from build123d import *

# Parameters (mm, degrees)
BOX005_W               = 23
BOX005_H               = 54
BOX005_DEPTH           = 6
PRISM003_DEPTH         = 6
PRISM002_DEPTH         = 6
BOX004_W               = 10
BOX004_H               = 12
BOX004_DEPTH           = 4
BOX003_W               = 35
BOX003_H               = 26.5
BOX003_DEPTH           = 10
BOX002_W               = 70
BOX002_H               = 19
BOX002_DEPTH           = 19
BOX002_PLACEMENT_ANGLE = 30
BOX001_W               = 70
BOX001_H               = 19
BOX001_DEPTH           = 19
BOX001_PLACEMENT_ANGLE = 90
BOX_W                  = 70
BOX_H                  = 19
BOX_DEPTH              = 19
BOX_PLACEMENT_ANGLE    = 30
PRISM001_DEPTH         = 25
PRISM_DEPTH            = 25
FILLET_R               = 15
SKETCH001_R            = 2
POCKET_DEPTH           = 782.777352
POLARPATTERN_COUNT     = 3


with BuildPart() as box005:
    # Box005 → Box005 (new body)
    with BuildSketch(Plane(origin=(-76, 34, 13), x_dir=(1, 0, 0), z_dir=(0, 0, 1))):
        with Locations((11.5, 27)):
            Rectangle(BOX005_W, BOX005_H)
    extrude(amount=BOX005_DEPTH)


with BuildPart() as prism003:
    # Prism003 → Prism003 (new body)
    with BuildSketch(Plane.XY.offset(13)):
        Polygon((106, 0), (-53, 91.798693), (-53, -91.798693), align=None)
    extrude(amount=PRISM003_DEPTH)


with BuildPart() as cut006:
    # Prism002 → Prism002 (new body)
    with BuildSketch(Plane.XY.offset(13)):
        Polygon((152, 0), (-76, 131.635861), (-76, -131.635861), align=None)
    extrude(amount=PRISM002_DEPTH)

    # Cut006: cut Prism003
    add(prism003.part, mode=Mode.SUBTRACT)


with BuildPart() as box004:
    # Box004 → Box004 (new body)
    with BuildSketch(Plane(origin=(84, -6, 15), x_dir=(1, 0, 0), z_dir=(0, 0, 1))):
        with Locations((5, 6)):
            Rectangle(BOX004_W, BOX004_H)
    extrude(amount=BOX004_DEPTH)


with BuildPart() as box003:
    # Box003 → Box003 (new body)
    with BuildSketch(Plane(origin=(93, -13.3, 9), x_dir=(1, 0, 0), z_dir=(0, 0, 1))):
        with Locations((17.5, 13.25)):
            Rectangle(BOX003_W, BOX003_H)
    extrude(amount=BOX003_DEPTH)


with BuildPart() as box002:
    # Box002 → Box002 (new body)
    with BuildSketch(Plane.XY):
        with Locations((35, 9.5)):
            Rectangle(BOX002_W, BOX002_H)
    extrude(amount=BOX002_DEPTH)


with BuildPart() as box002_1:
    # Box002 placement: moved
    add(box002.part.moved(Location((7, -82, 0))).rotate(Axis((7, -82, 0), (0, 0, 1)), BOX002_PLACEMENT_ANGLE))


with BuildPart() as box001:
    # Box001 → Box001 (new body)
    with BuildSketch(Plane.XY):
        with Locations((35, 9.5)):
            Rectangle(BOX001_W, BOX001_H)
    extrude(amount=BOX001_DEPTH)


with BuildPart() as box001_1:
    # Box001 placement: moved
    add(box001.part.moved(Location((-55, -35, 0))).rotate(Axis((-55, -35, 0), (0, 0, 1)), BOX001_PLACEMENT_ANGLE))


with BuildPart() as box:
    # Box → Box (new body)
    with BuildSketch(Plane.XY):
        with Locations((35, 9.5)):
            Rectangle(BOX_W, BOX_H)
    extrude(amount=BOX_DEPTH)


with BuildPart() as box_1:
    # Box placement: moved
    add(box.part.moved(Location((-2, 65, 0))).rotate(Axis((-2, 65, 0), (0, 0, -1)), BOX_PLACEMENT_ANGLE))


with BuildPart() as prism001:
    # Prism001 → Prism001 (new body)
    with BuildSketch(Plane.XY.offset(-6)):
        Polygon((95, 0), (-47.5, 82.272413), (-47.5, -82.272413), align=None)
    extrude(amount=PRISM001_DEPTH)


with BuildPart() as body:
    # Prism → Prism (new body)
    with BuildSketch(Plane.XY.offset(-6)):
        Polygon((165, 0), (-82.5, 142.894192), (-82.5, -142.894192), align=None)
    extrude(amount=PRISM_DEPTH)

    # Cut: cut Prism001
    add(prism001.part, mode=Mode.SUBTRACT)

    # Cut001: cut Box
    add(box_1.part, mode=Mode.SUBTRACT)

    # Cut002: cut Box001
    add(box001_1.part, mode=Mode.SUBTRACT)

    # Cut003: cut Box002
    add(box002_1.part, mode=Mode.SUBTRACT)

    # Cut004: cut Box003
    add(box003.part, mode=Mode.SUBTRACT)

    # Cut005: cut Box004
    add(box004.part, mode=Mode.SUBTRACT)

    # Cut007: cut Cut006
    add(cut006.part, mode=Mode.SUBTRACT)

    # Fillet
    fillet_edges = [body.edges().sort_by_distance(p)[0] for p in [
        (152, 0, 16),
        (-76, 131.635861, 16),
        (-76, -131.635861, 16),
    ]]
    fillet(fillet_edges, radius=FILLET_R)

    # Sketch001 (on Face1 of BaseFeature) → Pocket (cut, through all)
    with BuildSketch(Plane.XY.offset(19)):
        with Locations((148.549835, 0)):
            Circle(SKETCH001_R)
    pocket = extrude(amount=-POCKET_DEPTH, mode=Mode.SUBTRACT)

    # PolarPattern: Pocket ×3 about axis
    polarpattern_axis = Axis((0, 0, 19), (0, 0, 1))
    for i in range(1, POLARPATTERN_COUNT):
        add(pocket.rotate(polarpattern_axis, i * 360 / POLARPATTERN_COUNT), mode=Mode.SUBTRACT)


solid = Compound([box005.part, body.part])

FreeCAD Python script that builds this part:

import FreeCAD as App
import Part
import Sketcher

V = App.Vector
Q = App.Units.Quantity


def edges_at(feature, points):
    """Names of the edges that pass closest to the given points."""
    edges = feature.Shape.Edges
    near = lambda p: min(range(len(edges)), key=lambda i: edges[i].distToShape(Part.Vertex(*p))[0])
    return sorted({f"Edge{near(p) + 1}" for p in points})

doc = App.newDocument("Part")
params = doc.addObject("Spreadsheet::Sheet", "Params")
for row, (alias, value) in enumerate([
    ("sketch1_width", "23 mm"),
    ("sketch1_height", "54 mm"),
    ("pad1_length", "6 mm"),
    ("pad2_length", "6 mm"),
    ("pad3_length", "6 mm"),
    ("sketch4_width", "10 mm"),
    ("sketch4_height", "12 mm"),
    ("pad4_length", "4 mm"),
    ("sketch5_width", "35 mm"),
    ("sketch5_height", "26.5 mm"),
    ("pad5_length", "10 mm"),
    ("sketch6_width", "70 mm"),
    ("sketch6_height", "19 mm"),
    ("pad6_length", "19 mm"),
    ("sketch7_width", "70 mm"),
    ("sketch7_height", "19 mm"),
    ("pad7_length", "19 mm"),
    ("sketch8_width", "70 mm"),
    ("sketch8_height", "19 mm"),
    ("pad8_length", "19 mm"),
    ("pad9_length", "25 mm"),
    ("pad10_length", "25 mm"),
    ("fillet_radius", "15 mm"),
    ("sketch11_diameter", "4 mm"),
], start=1):
    params.set(f"A{row}", alias)
    params.set(f"B{row}", "=" + value)
    params.setAlias(f"B{row}", alias)

body = doc.addObject("PartDesign::Body", "Body")

sketch1 = body.newObject("Sketcher::SketchObject", "Sketch")
sketch1.AttachmentSupport = (doc.getObject("XY_Plane"), [""])
sketch1.MapMode = "FlatFace"
sketch1.AttachmentOffset = App.Placement(V(0, 0, 13), App.Rotation())
sketch1.addGeometry([
    Part.LineSegment(V(-76, 88, 0), V(-76, 34, 0)),
    Part.LineSegment(V(-76, 34, 0), V(-53, 34, 0)),
    Part.LineSegment(V(-53, 34, 0), V(-53, 88, 0)),
    Part.LineSegment(V(-53, 88, 0), V(-76, 88, 0)),
], False)
sketch1.addConstraint([
    Sketcher.Constraint("Coincident", 0, 2, 1, 1),
    Sketcher.Constraint("Coincident", 1, 2, 2, 1),
    Sketcher.Constraint("Coincident", 2, 2, 3, 1),
    Sketcher.Constraint("Coincident", 3, 2, 0, 1),
    Sketcher.Constraint("Vertical", 0),
    Sketcher.Constraint("Horizontal", 1),
    Sketcher.Constraint("Vertical", 2),
    Sketcher.Constraint("Horizontal", 3),
    Sketcher.Constraint("DistanceX", 1, 1, 1, 2, 23.0),
    Sketcher.Constraint("DistanceY", 0, 2, 0, 1, 54.0),
    Sketcher.Constraint("DistanceX", 0, 2, -1, 1, 76.0),
    Sketcher.Constraint("DistanceY", -1, 1, 0, 2, 34.0),
])
sketch1.setExpression("Constraints[8]", "Params.sketch1_width")
sketch1.setExpression("Constraints[9]", "Params.sketch1_height")
pad1 = body.newObject("PartDesign::Pad", "Pad")
pad1.Profile = sketch1
pad1.setExpression("Length", "Params.pad1_length")
body2 = doc.addObject("PartDesign::Body", "Body001")

sketch2 = body2.newObject("Sketcher::SketchObject", "Sketch001")
sketch2.AttachmentSupport = (doc.getObject("XY_Plane001"), [""])
sketch2.MapMode = "FlatFace"
sketch2.AttachmentOffset = App.Placement(V(0, 0, 13), App.Rotation())
sketch2.addGeometry([
    Part.LineSegment(V(106, 0, 0), V(-53, 92, 0)),
    Part.LineSegment(V(-53, 92, 0), V(-53, -92, 0)),
    Part.LineSegment(V(-53, -92, 0), V(106, 0, 0)),
], False)
sketch2.addConstraint([
    Sketcher.Constraint("Coincident", 0, 2, 1, 1),
    Sketcher.Constraint("Coincident", 1, 2, 2, 1),
    Sketcher.Constraint("Coincident", 2, 2, 0, 1),
    Sketcher.Constraint("Vertical", 1),
    Sketcher.Constraint("PointOnObject", 2, 2, -1),
    Sketcher.Constraint("Equal", 0, 2),
    Sketcher.Constraint("Angle", 0, Q("150 deg")),
    Sketcher.Constraint("DistanceX", 0, 2, -1, 1, 53.0),
    Sketcher.Constraint("DistanceX", -1, 1, 2, 2, 106.0),
])
pad2 = body2.newObject("PartDesign::Pad", "Pad001")
pad2.Profile = sketch2
pad2.setExpression("Length", "Params.pad2_length")
body3 = doc.addObject("PartDesign::Body", "Body002")

sketch3 = body3.newObject("Sketcher::SketchObject", "Sketch002")
sketch3.AttachmentSupport = (doc.getObject("XY_Plane002"), [""])
sketch3.MapMode = "FlatFace"
sketch3.AttachmentOffset = App.Placement(V(0, 0, 13), App.Rotation())
sketch3.addGeometry([
    Part.LineSegment(V(152, 0, 0), V(-76, 132, 0)),
    Part.LineSegment(V(-76, 132, 0), V(-76, -132, 0)),
    Part.LineSegment(V(-76, -132, 0), V(152, 0, 0)),
], False)
sketch3.addConstraint([
    Sketcher.Constraint("Coincident", 0, 2, 1, 1),
    Sketcher.Constraint("Coincident", 1, 2, 2, 1),
    Sketcher.Constraint("Coincident", 2, 2, 0, 1),
    Sketcher.Constraint("Vertical", 1),
    Sketcher.Constraint("PointOnObject", 2, 2, -1),
    Sketcher.Constraint("Equal", 0, 2),
    Sketcher.Constraint("Angle", 0, Q("150 deg")),
    Sketcher.Constraint("DistanceX", 0, 2, -1, 1, 76.0),
    Sketcher.Constraint("DistanceX", -1, 1, 2, 2, 152.0),
])
pad3 = body3.newObject("PartDesign::Pad", "Pad002")
pad3.Profile = sketch3
pad3.setExpression("Length", "Params.pad3_length")
doc.recompute()

boolean = body3.newObject("PartDesign::Boolean", "Boolean")
boolean.Type = "Cut"
boolean.addObjects([body2])
body4 = doc.addObject("PartDesign::Body", "Body003")

sketch4 = body4.newObject("Sketcher::SketchObject", "Sketch003")
sketch4.AttachmentSupport = (doc.getObject("XY_Plane003"), [""])
sketch4.MapMode = "FlatFace"
sketch4.AttachmentOffset = App.Placement(V(0, 0, 15), App.Rotation())
sketch4.addGeometry([
    Part.LineSegment(V(84, 6, 0), V(84, -6, 0)),
    Part.LineSegment(V(84, -6, 0), V(94, -6, 0)),
    Part.LineSegment(V(94, -6, 0), V(94, 6, 0)),
    Part.LineSegment(V(94, 6, 0), V(84, 6, 0)),
], False)
sketch4.addConstraint([
    Sketcher.Constraint("Coincident", 0, 2, 1, 1),
    Sketcher.Constraint("Coincident", 1, 2, 2, 1),
    Sketcher.Constraint("Coincident", 2, 2, 3, 1),
    Sketcher.Constraint("Coincident", 3, 2, 0, 1),
    Sketcher.Constraint("Vertical", 0),
    Sketcher.Constraint("Horizontal", 1),
    Sketcher.Constraint("Vertical", 2),
    Sketcher.Constraint("Horizontal", 3),
    Sketcher.Constraint("DistanceX", 1, 1, 1, 2, 10.0),
    Sketcher.Constraint("DistanceY", 0, 2, 0, 1, 12.0),
    Sketcher.Constraint("DistanceX", -1, 1, 0, 2, 84.0),
    Sketcher.Constraint("DistanceY", 0, 2, -1, 1, 6.0),
])
sketch4.setExpression("Constraints[8]", "Params.sketch4_width")
sketch4.setExpression("Constraints[9]", "Params.sketch4_height")
pad4 = body4.newObject("PartDesign::Pad", "Pad003")
pad4.Profile = sketch4
pad4.setExpression("Length", "Params.pad4_length")
body5 = doc.addObject("PartDesign::Body", "Body004")

sketch5 = body5.newObject("Sketcher::SketchObject", "Sketch004")
sketch5.AttachmentSupport = (doc.getObject("XY_Plane004"), [""])
sketch5.MapMode = "FlatFace"
sketch5.AttachmentOffset = App.Placement(V(0, 0, 9), App.Rotation())
sketch5.addGeometry([
    Part.LineSegment(V(93, 13, 0), V(93, -13, 0)),
    Part.LineSegment(V(93, -13, 0), V(128, -13, 0)),
    Part.LineSegment(V(128, -13, 0), V(128, 13, 0)),
    Part.LineSegment(V(128, 13, 0), V(93, 13, 0)),
], False)
sketch5.addConstraint([
    Sketcher.Constraint("Coincident", 0, 2, 1, 1),
    Sketcher.Constraint("Coincident", 1, 2, 2, 1),
    Sketcher.Constraint("Coincident", 2, 2, 3, 1),
    Sketcher.Constraint("Coincident", 3, 2, 0, 1),
    Sketcher.Constraint("Vertical", 0),
    Sketcher.Constraint("Horizontal", 1),
    Sketcher.Constraint("Vertical", 2),
    Sketcher.Constraint("Horizontal", 3),
    Sketcher.Constraint("DistanceX", 1, 1, 1, 2, 35.0),
    Sketcher.Constraint("DistanceY", 0, 2, 0, 1, 26.5),
    Sketcher.Constraint("DistanceX", -1, 1, 0, 2, 93.0),
    Sketcher.Constraint("DistanceY", 0, 2, -1, 1, 13.3),
])
sketch5.setExpression("Constraints[8]", "Params.sketch5_width")
sketch5.setExpression("Constraints[9]", "Params.sketch5_height")
pad5 = body5.newObject("PartDesign::Pad", "Pad004")
pad5.Profile = sketch5
pad5.setExpression("Length", "Params.pad5_length")
body6 = doc.addObject("PartDesign::Body", "Body005")

sketch6 = body6.newObject("Sketcher::SketchObject", "Sketch005")
sketch6.AttachmentSupport = (doc.getObject("XY_Plane005"), [""])
sketch6.MapMode = "FlatFace"
sketch6.addGeometry([
    Part.LineSegment(V(0, 19, 0), V(0, 0, 0)),
    Part.LineSegment(V(0, 0, 0), V(70, 0, 0)),
    Part.LineSegment(V(70, 0, 0), V(70, 19, 0)),
    Part.LineSegment(V(70, 19, 0), V(0, 19, 0)),
], False)
sketch6.addConstraint([
    Sketcher.Constraint("Coincident", 0, 2, 1, 1),
    Sketcher.Constraint("Coincident", 1, 2, 2, 1),
    Sketcher.Constraint("Coincident", 2, 2, 3, 1),
    Sketcher.Constraint("Coincident", 3, 2, 0, 1),
    Sketcher.Constraint("Vertical", 0),
    Sketcher.Constraint("Horizontal", 1),
    Sketcher.Constraint("Vertical", 2),
    Sketcher.Constraint("Horizontal", 3),
    Sketcher.Constraint("Coincident", 0, 2, -1, 1),
    Sketcher.Constraint("DistanceX", 1, 1, 1, 2, 70.0),
    Sketcher.Constraint("DistanceY", 0, 2, 0, 1, 19.0),
])
sketch6.setExpression("Constraints[9]", "Params.sketch6_width")
sketch6.setExpression("Constraints[10]", "Params.sketch6_height")
pad6 = body6.newObject("PartDesign::Pad", "Pad005")
pad6.Profile = sketch6
pad6.setExpression("Length", "Params.pad6_length")
body7 = doc.addObject("PartDesign::Body", "Body006")
doc.recompute()

body6.Placement = App.Placement(V(7, -82, 0), App.Rotation(V(0, 0, 1), 30))
boolean2 = body7.newObject("PartDesign::Boolean", "Boolean001")
boolean2.Type = "Fuse"
boolean2.addObjects([body6])
body8 = doc.addObject("PartDesign::Body", "Body007")

sketch7 = body8.newObject("Sketcher::SketchObject", "Sketch006")
sketch7.AttachmentSupport = (doc.getObject("XY_Plane007"), [""])
sketch7.MapMode = "FlatFace"
sketch7.addGeometry([
    Part.LineSegment(V(0, 19, 0), V(0, 0, 0)),
    Part.LineSegment(V(0, 0, 0), V(70, 0, 0)),
    Part.LineSegment(V(70, 0, 0), V(70, 19, 0)),
    Part.LineSegment(V(70, 19, 0), V(0, 19, 0)),
], False)
sketch7.addConstraint([
    Sketcher.Constraint("Coincident", 0, 2, 1, 1),
    Sketcher.Constraint("Coincident", 1, 2, 2, 1),
    Sketcher.Constraint("Coincident", 2, 2, 3, 1),
    Sketcher.Constraint("Coincident", 3, 2, 0, 1),
    Sketcher.Constraint("Vertical", 0),
    Sketcher.Constraint("Horizontal", 1),
    Sketcher.Constraint("Vertical", 2),
    Sketcher.Constraint("Horizontal", 3),
    Sketcher.Constraint("Coincident", 0, 2, -1, 1),
    Sketcher.Constraint("DistanceX", 1, 1, 1, 2, 70.0),
    Sketcher.Constraint("DistanceY", 0, 2, 0, 1, 19.0),
])
sketch7.setExpression("Constraints[9]", "Params.sketch7_width")
sketch7.setExpression("Constraints[10]", "Params.sketch7_height")
pad7 = body8.newObject("PartDesign::Pad", "Pad006")
pad7.Profile = sketch7
pad7.setExpression("Length", "Params.pad7_length")
body9 = doc.addObject("PartDesign::Body", "Body008")
doc.recompute()

body8.Placement = App.Placement(V(-55, -35, 0), App.Rotation(V(0, 0, 1), 90))
boolean3 = body9.newObject("PartDesign::Boolean", "Boolean002")
boolean3.Type = "Fuse"
boolean3.addObjects([body8])
body10 = doc.addObject("PartDesign::Body", "Body009")

sketch8 = body10.newObject("Sketcher::SketchObject", "Sketch007")
sketch8.AttachmentSupport = (doc.getObject("XY_Plane009"), [""])
sketch8.MapMode = "FlatFace"
sketch8.addGeometry([
    Part.LineSegment(V(0, 19, 0), V(0, 0, 0)),
    Part.LineSegment(V(0, 0, 0), V(70, 0, 0)),
    Part.LineSegment(V(70, 0, 0), V(70, 19, 0)),
    Part.LineSegment(V(70, 19, 0), V(0, 19, 0)),
], False)
sketch8.addConstraint([
    Sketcher.Constraint("Coincident", 0, 2, 1, 1),
    Sketcher.Constraint("Coincident", 1, 2, 2, 1),
    Sketcher.Constraint("Coincident", 2, 2, 3, 1),
    Sketcher.Constraint("Coincident", 3, 2, 0, 1),
    Sketcher.Constraint("Vertical", 0),
    Sketcher.Constraint("Horizontal", 1),
    Sketcher.Constraint("Vertical", 2),
    Sketcher.Constraint("Horizontal", 3),
    Sketcher.Constraint("Coincident", 0, 2, -1, 1),
    Sketcher.Constraint("DistanceX", 1, 1, 1, 2, 70.0),
    Sketcher.Constraint("DistanceY", 0, 2, 0, 1, 19.0),
])
sketch8.setExpression("Constraints[9]", "Params.sketch8_width")
sketch8.setExpression("Constraints[10]", "Params.sketch8_height")
pad8 = body10.newObject("PartDesign::Pad", "Pad007")
pad8.Profile = sketch8
pad8.setExpression("Length", "Params.pad8_length")
body11 = doc.addObject("PartDesign::Body", "Body010")
doc.recompute()

body10.Placement = App.Placement(V(-2, 65, 0), App.Rotation(V(0, 0, -1), 30))
boolean4 = body11.newObject("PartDesign::Boolean", "Boolean003")
boolean4.Type = "Fuse"
boolean4.addObjects([body10])
body12 = doc.addObject("PartDesign::Body", "Body011")

sketch9 = body12.newObject("Sketcher::SketchObject", "Sketch008")
sketch9.AttachmentSupport = (doc.getObject("XY_Plane011"), [""])
sketch9.MapMode = "FlatFace"
sketch9.AttachmentOffset = App.Placement(V(0, 0, -6), App.Rotation())
sketch9.addGeometry([
    Part.LineSegment(V(95, 0, 0), V(-48, 82, 0)),
    Part.LineSegment(V(-48, 82, 0), V(-48, -82, 0)),
    Part.LineSegment(V(-48, -82, 0), V(95, 0, 0)),
], False)
sketch9.addConstraint([
    Sketcher.Constraint("Coincident", 0, 2, 1, 1),
    Sketcher.Constraint("Coincident", 1, 2, 2, 1),
    Sketcher.Constraint("Coincident", 2, 2, 0, 1),
    Sketcher.Constraint("Vertical", 1),
    Sketcher.Constraint("PointOnObject", 2, 2, -1),
    Sketcher.Constraint("Equal", 0, 2),
    Sketcher.Constraint("Angle", 0, Q("150 deg")),
    Sketcher.Constraint("DistanceX", -1, 1, 2, 2, 95.0),
    Sketcher.Constraint("DistanceX", 0, 2, -1, 1, 47.5),
])
pad9 = body12.newObject("PartDesign::Pad", "Pad008")
pad9.Profile = sketch9
pad9.setExpression("Length", "Params.pad9_length")
body13 = doc.addObject("PartDesign::Body", "Body012")

sketch10 = body13.newObject("Sketcher::SketchObject", "Sketch009")
sketch10.AttachmentSupport = (doc.getObject("XY_Plane012"), [""])
sketch10.MapMode = "FlatFace"
sketch10.AttachmentOffset = App.Placement(V(0, 0, -6), App.Rotation())
sketch10.addGeometry([
    Part.LineSegment(V(165, 0, 0), V(-82, 143, 0)),
    Part.LineSegment(V(-82, 143, 0), V(-82, -143, 0)),
    Part.LineSegment(V(-82, -143, 0), V(165, 0, 0)),
], False)
sketch10.addConstraint([
    Sketcher.Constraint("Coincident", 0, 2, 1, 1),
    Sketcher.Constraint("Coincident", 1, 2, 2, 1),
    Sketcher.Constraint("Coincident", 2, 2, 0, 1),
    Sketcher.Constraint("Vertical", 1),
    Sketcher.Constraint("PointOnObject", 2, 2, -1),
    Sketcher.Constraint("Equal", 0, 2),
    Sketcher.Constraint("Angle", 0, Q("150 deg")),
    Sketcher.Constraint("DistanceX", -1, 1, 2, 2, 165.0),
    Sketcher.Constraint("DistanceX", 0, 2, -1, 1, 82.5),
])
pad10 = body13.newObject("PartDesign::Pad", "Pad009")
pad10.Profile = sketch10
pad10.setExpression("Length", "Params.pad10_length")
doc.recompute()

boolean5 = body13.newObject("PartDesign::Boolean", "Boolean004")
boolean5.Type = "Cut"
boolean5.addObjects([body12])
doc.recompute()

boolean6 = body13.newObject("PartDesign::Boolean", "Boolean005")
boolean6.Type = "Cut"
boolean6.addObjects([body11])
doc.recompute()

boolean7 = body13.newObject("PartDesign::Boolean", "Boolean006")
boolean7.Type = "Cut"
boolean7.addObjects([body9])
doc.recompute()

boolean8 = body13.newObject("PartDesign::Boolean", "Boolean007")
boolean8.Type = "Cut"
boolean8.addObjects([body7])
doc.recompute()

boolean9 = body13.newObject("PartDesign::Boolean", "Boolean008")
boolean9.Type = "Cut"
boolean9.addObjects([body5])
doc.recompute()

boolean10 = body13.newObject("PartDesign::Boolean", "Boolean009")
boolean10.Type = "Cut"
boolean10.addObjects([body4])
doc.recompute()

boolean11 = body13.newObject("PartDesign::Boolean", "Boolean010")
boolean11.Type = "Cut"
boolean11.addObjects([body3])
doc.recompute()

fillet = body13.newObject("PartDesign::Fillet", "Fillet")
fillet.Base = (boolean11, edges_at(boolean11, [(152, 0, 16), (-76, 131.636, 16), (-76, -131.636, 16)]))
fillet.setExpression("Radius", "Params.fillet_radius")

sketch11 = body13.newObject("Sketcher::SketchObject", "Sketch010")
sketch11.AttachmentSupport = (doc.getObject("XY_Plane012"), [""])
sketch11.MapMode = "FlatFace"
sketch11.AttachmentOffset = App.Placement(V(0, 0, 19), App.Rotation())
sketch11.addGeometry(Part.Circle(V(148.5, 0, 0), V(0, 0, 1), 2), False)
sketch11.addConstraint([
    Sketcher.Constraint("PointOnObject", 0, 3, -1),
    Sketcher.Constraint("Diameter", 0, 4.0),
    Sketcher.Constraint("DistanceX", -1, 1, 0, 3, 148.549835),
])
sketch11.setExpression("Constraints[1]", "Params.sketch11_diameter")
pocket1 = body13.newObject("PartDesign::Pocket", "Pocket")
pocket1.Profile = sketch11
pocket1.Type = "ThroughAll"
doc.recompute()

polarpattern = body13.newObject("PartDesign::PolarPattern", "PolarPattern")
polarpattern.Originals = [pocket1]
polarpattern.Axis = (doc.getObject("Z_Axis012"), [""])
polarpattern.Angle = 360
polarpattern.Occurrences = 3
body13.Tip = polarpattern

doc.recompute()
